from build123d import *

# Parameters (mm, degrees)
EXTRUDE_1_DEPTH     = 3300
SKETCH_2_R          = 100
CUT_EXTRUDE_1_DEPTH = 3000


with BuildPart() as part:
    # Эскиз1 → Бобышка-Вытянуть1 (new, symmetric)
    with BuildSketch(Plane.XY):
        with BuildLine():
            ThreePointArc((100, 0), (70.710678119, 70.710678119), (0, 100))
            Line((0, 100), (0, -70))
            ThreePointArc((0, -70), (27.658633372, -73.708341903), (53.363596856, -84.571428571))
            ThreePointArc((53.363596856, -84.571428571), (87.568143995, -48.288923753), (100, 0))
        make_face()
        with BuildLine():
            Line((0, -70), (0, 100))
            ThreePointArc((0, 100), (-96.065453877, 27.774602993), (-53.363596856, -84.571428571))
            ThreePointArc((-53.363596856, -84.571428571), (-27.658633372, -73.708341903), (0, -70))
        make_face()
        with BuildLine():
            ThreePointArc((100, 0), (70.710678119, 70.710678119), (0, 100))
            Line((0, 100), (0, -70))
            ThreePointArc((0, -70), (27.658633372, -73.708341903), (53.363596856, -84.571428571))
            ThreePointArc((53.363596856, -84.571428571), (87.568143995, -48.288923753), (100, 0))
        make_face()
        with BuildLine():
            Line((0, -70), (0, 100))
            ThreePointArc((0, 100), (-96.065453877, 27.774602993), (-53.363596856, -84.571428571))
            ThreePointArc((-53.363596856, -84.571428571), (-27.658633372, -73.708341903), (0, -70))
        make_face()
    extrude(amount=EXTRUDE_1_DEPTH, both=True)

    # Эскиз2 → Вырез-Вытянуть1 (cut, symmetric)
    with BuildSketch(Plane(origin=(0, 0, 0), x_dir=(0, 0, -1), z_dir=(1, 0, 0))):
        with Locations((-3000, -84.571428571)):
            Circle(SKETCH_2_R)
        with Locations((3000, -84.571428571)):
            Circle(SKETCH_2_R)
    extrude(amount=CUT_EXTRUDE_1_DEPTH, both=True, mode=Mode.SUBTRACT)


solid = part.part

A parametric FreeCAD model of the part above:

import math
import FreeCAD as App
import Part
import Sketcher

doc = App.newDocument("Part")
params = doc.addObject("Spreadsheet::Sheet", "Params")
for row, (alias, value) in enumerate([
    ("sketch1_radius", "105 mm"),
    ("sketch1_radius2", "100 mm"),
    ("pad1_length", "6600 mm"),
    ("sketch2_diameter", "200 mm"),
    ("pocket1_length", "6000 mm"),
], start=1):
    params.set(f"A{row}", alias)
    params.set(f"B{row}", "=" + value)
    params.setAlias(f"B{row}", alias)

body = doc.addObject("PartDesign::Body", "Body")

sketch1 = body.newObject("Sketcher::SketchObject", "Sketch")
sketch1.AttachmentSupport = (doc.getObject("XY_Plane"), [""])
sketch1.MapMode = "FlatFace"
sketch1.addGeometry([
    Part.ArcOfCircle(Part.Circle(App.Vector(0, -175, 0), App.Vector(0, 0, 1), 105), math.radians(59.454348), math.radians(90)),
    Part.ArcOfCircle(Part.Circle(App.Vector(0, 0, 0), App.Vector(0, 0, 1), 100), math.radians(-57.748547), math.radians(0)),
    Part.ArcOfCircle(Part.Circle(App.Vector(0, 0, 0), App.Vector(0, 0, 1), 100), math.radians(0), math.radians(90)),
    Part.ArcOfCircle(Part.Circle(App.Vector(0, 0, 0), App.Vector(0, 0, 1), 100), math.radians(90), math.radians(237.748547)),
    Part.ArcOfCircle(Part.Circle(App.Vector(0, -175, 0), App.Vector(0, 0, 1), 105), math.radians(90), math.radians(120.545652)),
], False)
sketch1.addConstraint([
    Sketcher.Constraint("Coincident", 0, 1, 1, 1),
    Sketcher.Constraint("Tangent", 1, 2, 2, 1),
    Sketcher.Constraint("Tangent", 2, 2, 3, 1),
    Sketcher.Constraint("Coincident", 3, 2, 4, 2),
    Sketcher.Constraint("Tangent", 4, 1, 0, 2),
    Sketcher.Constraint("Coincident", 1, 3, -1, 1),
    Sketcher.Constraint("Coincident", 3, 3, -1, 1),
    Sketcher.Constraint("Equal", 0, 4),
    Sketcher.Constraint("PointOnObject", 0, 3, -2),
    Sketcher.Constraint("PointOnObject", 1, 2, -1),
    Sketcher.Constraint("PointOnObject", 2, 2, -2),
    Sketcher.Constraint("PointOnObject", 4, 1, -2),
    Sketcher.Constraint("Radius", 0, 105.0),
    Sketcher.Constraint("Radius", 1, 100.0),
    Sketcher.Constraint("DistanceY", 0, 3, -1, 1, 175.0),
])
sketch1.setExpression("Constraints[12]", "Params.sketch1_radius")
sketch1.setExpression("Constraints[13]", "Params.sketch1_radius2")
pad1 = body.newObject("PartDesign::Pad", "Pad")
pad1.Profile = sketch1
pad1.setExpression("Length", "Params.pad1_length")
pad1.Midplane = True

sketch2 = body.newObject("Sketcher::SketchObject", "Sketch001")
sketch2.AttachmentSupport = (doc.getObject("YZ_Plane"), [""])
sketch2.MapMode = "FlatFace"
sketch2.addGeometry([
    Part.Circle(App.Vector(-84.571429, 3000, 0), App.Vector(0, 0, 1), 100),
    Part.Circle(App.Vector(-84.571429, -3000, 0), App.Vector(0, 0, 1), 100),
], False)
sketch2.addConstraint([
    Sketcher.Constraint("Equal", 0, 1),
    Sketcher.Constraint("Symmetric", 0, 3, 1, 3, -1),
    Sketcher.Constraint("Diameter", 0, 200.0),
    Sketcher.Constraint("DistanceY", -1, 1, 0, 3, 3000.0),
    Sketcher.Constraint("DistanceX", 0, 3, -1, 1, 84.571429),
])
sketch2.setExpression("Constraints[2]", "Params.sketch2_diameter")
pocket1 = body.newObject("PartDesign::Pocket", "Pocket")
pocket1.Profile = sketch2
pocket1.setExpression("Length", "Params.pocket1_length")
pocket1.Midplane = True

doc.recompute()
